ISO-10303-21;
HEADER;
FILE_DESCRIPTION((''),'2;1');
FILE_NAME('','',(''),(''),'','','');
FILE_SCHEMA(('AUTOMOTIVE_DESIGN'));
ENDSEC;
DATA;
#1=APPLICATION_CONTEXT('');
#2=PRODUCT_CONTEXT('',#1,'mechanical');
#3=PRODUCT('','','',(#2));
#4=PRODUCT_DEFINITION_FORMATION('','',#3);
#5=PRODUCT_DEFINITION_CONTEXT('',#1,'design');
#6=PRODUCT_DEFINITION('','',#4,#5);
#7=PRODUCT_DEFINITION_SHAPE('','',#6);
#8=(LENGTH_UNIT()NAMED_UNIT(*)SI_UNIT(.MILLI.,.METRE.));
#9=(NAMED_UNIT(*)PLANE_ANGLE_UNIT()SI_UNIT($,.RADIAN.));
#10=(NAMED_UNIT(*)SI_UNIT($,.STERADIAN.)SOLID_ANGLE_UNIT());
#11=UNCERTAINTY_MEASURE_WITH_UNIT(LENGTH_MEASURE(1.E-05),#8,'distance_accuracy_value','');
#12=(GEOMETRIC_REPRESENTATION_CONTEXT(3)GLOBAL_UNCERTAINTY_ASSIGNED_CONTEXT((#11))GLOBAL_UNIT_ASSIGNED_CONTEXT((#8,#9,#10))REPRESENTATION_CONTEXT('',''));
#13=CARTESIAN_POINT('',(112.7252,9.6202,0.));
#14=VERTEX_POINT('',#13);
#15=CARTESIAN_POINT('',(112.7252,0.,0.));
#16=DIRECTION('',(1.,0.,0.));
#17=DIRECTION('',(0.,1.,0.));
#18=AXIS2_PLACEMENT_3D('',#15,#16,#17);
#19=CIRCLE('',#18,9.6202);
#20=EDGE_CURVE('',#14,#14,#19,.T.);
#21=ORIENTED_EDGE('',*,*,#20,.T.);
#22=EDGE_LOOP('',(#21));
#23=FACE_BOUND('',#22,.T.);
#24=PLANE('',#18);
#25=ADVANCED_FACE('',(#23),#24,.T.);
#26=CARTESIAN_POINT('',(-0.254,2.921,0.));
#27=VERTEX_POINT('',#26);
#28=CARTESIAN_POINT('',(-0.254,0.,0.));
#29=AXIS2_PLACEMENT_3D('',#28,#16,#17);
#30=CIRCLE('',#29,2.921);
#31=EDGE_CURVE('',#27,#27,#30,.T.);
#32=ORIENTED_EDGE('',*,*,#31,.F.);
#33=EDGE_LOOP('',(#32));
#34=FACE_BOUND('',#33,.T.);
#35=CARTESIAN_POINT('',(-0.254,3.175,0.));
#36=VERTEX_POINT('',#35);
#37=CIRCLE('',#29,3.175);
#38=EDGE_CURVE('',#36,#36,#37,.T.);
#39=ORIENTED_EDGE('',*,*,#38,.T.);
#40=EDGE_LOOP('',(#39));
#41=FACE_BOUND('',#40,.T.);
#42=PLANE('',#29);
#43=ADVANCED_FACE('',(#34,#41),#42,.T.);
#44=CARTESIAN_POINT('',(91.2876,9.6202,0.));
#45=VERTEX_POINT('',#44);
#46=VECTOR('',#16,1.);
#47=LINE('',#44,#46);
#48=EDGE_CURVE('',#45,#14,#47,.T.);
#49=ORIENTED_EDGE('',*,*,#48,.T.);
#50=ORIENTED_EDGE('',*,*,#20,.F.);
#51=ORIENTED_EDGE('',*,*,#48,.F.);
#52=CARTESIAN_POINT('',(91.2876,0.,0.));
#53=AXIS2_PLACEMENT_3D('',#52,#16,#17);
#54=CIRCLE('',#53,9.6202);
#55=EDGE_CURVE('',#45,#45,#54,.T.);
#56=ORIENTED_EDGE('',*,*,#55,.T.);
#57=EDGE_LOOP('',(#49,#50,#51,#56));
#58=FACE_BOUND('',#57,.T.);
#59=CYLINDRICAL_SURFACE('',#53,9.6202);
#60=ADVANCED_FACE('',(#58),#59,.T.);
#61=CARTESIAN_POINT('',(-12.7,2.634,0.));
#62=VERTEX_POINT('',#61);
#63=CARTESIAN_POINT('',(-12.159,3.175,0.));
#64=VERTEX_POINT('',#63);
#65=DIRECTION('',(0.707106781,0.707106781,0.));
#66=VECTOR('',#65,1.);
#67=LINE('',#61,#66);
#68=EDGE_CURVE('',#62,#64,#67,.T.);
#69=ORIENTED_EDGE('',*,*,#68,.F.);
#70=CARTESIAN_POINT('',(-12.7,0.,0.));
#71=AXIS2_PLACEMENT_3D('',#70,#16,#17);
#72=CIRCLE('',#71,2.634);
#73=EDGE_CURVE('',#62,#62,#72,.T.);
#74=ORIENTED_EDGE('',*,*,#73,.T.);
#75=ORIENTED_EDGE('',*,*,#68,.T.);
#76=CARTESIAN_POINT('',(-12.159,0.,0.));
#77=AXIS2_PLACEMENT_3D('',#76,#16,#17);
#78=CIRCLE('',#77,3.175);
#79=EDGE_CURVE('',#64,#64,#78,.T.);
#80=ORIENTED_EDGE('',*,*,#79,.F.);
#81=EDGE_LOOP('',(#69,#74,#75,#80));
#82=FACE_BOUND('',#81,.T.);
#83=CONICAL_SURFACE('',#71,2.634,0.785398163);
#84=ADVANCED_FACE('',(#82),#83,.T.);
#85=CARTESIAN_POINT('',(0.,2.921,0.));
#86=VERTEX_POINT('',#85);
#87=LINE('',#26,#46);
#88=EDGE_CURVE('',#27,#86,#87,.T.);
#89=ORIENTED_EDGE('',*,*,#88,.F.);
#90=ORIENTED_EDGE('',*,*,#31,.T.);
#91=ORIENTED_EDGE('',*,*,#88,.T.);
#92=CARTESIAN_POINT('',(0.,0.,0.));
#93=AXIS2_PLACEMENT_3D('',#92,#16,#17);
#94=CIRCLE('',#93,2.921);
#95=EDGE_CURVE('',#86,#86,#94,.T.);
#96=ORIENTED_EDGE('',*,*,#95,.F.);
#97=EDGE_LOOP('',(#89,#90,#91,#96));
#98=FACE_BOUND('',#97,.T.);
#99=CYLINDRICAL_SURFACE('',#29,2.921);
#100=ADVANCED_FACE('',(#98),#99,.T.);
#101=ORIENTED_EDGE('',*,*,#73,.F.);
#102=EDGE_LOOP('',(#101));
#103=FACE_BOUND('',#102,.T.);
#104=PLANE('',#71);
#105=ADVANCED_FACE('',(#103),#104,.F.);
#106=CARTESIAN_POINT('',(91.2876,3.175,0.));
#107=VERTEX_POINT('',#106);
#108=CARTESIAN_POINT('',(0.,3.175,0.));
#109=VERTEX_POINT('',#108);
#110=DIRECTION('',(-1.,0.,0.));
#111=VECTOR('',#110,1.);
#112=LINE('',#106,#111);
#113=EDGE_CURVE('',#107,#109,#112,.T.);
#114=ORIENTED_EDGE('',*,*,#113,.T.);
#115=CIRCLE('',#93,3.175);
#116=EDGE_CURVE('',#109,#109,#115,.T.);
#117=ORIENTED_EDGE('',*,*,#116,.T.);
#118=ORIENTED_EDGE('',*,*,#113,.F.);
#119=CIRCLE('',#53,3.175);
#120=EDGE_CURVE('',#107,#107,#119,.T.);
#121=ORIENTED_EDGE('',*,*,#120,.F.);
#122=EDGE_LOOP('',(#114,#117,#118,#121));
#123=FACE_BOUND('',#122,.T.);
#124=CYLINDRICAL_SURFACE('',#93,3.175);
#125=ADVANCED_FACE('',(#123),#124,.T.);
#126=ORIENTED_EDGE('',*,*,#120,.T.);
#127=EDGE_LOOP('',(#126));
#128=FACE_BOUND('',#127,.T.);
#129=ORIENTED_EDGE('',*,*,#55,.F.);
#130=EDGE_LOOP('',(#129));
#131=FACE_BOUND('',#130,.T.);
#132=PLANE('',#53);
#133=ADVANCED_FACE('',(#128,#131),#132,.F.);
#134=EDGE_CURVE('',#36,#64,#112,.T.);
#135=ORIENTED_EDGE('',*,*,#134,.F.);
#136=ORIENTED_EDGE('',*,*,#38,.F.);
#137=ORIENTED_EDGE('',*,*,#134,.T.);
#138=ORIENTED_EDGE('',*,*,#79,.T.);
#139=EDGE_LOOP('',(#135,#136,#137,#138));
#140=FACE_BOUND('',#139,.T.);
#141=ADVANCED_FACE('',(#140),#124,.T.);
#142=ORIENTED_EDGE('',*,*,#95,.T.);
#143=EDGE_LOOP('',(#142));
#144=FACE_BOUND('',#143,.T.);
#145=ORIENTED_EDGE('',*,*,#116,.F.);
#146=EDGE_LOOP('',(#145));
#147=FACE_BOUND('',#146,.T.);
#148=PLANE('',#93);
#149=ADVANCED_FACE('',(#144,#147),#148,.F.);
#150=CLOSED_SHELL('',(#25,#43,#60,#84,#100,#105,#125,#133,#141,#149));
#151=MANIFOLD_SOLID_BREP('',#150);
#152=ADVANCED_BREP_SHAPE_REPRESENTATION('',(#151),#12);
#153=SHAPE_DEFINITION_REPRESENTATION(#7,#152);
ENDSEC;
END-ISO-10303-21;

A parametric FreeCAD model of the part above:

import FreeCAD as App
import Part
import Sketcher
from FreeCAD import Vector
Q = App.Units.Quantity

doc = App.newDocument("Part")
params = doc.addObject("Spreadsheet::Sheet", "Params")
for row, (alias, value) in enumerate([
    ("sketch1_width", "4.438 in"),
    ("sketch1_width2", "0.844 in"),
    ("sketch1_height", "0.125 in"),
    ("revolution_angle", "360 deg"),
    ("sketch2_width", "0.5 in"),
    ("sketch2_height", "0.125 in"),
    ("revolution2_angle", "360 deg"),
    ("sketch3_width", "0.01 in"),
    ("sketch3_height", "0.02 in"),
    ("groove_angle", "360 deg"),
], start=1):
    params.set(f"A{row}", alias)
    params.set(f"B{row}", "=" + value)
    params.setAlias(f"B{row}", alias)

body = doc.addObject("PartDesign::Body", "Body")

# Sketch on XY plane
sketch1 = body.newObject("Sketcher::SketchObject", "Sketch")
sketch1.AttachmentSupport = (doc.getObject("XY_Plane"), [""])
sketch1.MapMode = "FlatFace"
sketch1.addGeometry([
    Part.LineSegment(Vector(0, 0, 0), Vector(112.7252, 0, 0)),  # 0
    Part.LineSegment(Vector(112.7252, 0, 0), Vector(112.7252, 9.6202, 0)),  # 1
    Part.LineSegment(Vector(112.7252, 9.6202, 0), Vector(91.2876, 9.6202, 0)),  # 2
    Part.LineSegment(Vector(91.2876, 9.6202, 0), Vector(91.2876, 3.175, 0)),  # 3
    Part.LineSegment(Vector(91.2876, 3.175, 0), Vector(0, 3.175, 0)),  # 4
    Part.LineSegment(Vector(0, 3.175, 0), Vector(0, 0, 0)),  # 5
], False)
sketch1.addConstraint([
    Sketcher.Constraint("Coincident", 0, 2, 1, 1),
    Sketcher.Constraint("Coincident", 1, 2, 2, 1),
    Sketcher.Constraint("Coincident", 2, 2, 3, 1),
    Sketcher.Constraint("Coincident", 3, 2, 4, 1),
    Sketcher.Constraint("Coincident", 4, 2, 5, 1),
    Sketcher.Constraint("Coincident", 5, 2, 0, 1),
    Sketcher.Constraint("Horizontal", 0),
    Sketcher.Constraint("Vertical", 1),
    Sketcher.Constraint("Horizontal", 2),
    Sketcher.Constraint("Vertical", 3),
    Sketcher.Constraint("Horizontal", 4),
    Sketcher.Constraint("Vertical", 5),
    Sketcher.Constraint("Coincident", 5, 2, -1, 1),
    Sketcher.Constraint("DistanceX", 0, 1, 0, 2, Q("4.438 in")),
    Sketcher.Constraint("DistanceX", 2, 2, 2, 1, Q("0.844 in")),
    Sketcher.Constraint("DistanceY", 5, 2, 5, 1, Q("0.125 in")),
    Sketcher.Constraint("DistanceY", 1, 1, 1, 2, Q("9.6202 mm")),
])
sketch1.setExpression("Constraints[13]", "Params.sketch1_width")
sketch1.setExpression("Constraints[14]", "Params.sketch1_width2")
sketch1.setExpression("Constraints[15]", "Params.sketch1_height")
revolution = body.newObject("PartDesign::Revolution", "Revolution")
revolution.Profile = sketch1
revolution.ReferenceAxis = (sketch1, ["H_Axis"])
revolution.setExpression("Angle", "Params.revolution_angle")

# Sketch on XY plane
sketch2 = body.newObject("Sketcher::SketchObject", "Sketch001")
sketch2.AttachmentSupport = (doc.getObject("XY_Plane"), [""])
sketch2.MapMode = "FlatFace"
sketch2.addGeometry([
    Part.LineSegment(Vector(-12.7, 0, 0), Vector(0, 0, 0)),  # 0
    Part.LineSegment(Vector(0, 0, 0), Vector(0, 3.175, 0)),  # 1
    Part.LineSegment(Vector(0, 3.175, 0), Vector(-12.159, 3.175, 0)),  # 2
    Part.LineSegment(Vector(-12.159, 3.175, 0), Vector(-12.7, 2.634, 0)),  # 3
    Part.LineSegment(Vector(-12.7, 2.634, 0), Vector(-12.7, 0, 0)),  # 4
], False)
sketch2.addConstraint([
    Sketcher.Constraint("Coincident", 0, 2, 1, 1),
    Sketcher.Constraint("Coincident", 1, 2, 2, 1),
    Sketcher.Constraint("Coincident", 2, 2, 3, 1),
    Sketcher.Constraint("Coincident", 3, 2, 4, 1),
    Sketcher.Constraint("Coincident", 4, 2, 0, 1),
    Sketcher.Constraint("Horizontal", 0),
    Sketcher.Constraint("Vertical", 1),
    Sketcher.Constraint("Horizontal", 2),
    Sketcher.Constraint("Vertical", 4),
    Sketcher.Constraint("Coincident", 0, 2, -1, 1),
    Sketcher.Constraint("DistanceX", 0, 1, 0, 2, Q("0.5 in")),
    Sketcher.Constraint("Angle", 3, Q("-135 deg")),
    Sketcher.Constraint("DistanceY", 1, 1, 1, 2, Q("0.125 in")),
    Sketcher.Constraint("DistanceX", 2, 2, 2, 1, Q("0.4787 in")),
])
sketch2.setExpression("Constraints[10]", "Params.sketch2_width")
sketch2.setExpression("Constraints[12]", "Params.sketch2_height")
revolution2 = body.newObject("PartDesign::Revolution", "Revolution001")
revolution2.Profile = sketch2
revolution2.ReferenceAxis = (sketch2, ["H_Axis"])
revolution2.setExpression("Angle", "Params.revolution2_angle")

# Sketch on XY plane
sketch3 = body.newObject("Sketcher::SketchObject", "Sketch002")
sketch3.AttachmentSupport = (doc.getObject("XY_Plane"), [""])
sketch3.MapMode = "FlatFace"
sketch3.addGeometry([
    Part.LineSegment(Vector(-0.254, 3.429, 0), Vector(-0.254, 2.921, 0)),
    Part.LineSegment(Vector(-0.254, 2.921, 0), Vector(0, 2.921, 0)),
    Part.LineSegment(Vector(0, 2.921, 0), Vector(0, 3.429, 0)),
    Part.LineSegment(Vector(0, 3.429, 0), Vector(-0.254, 3.429, 0)),
], False)
sketch3.addConstraint([
    Sketcher.Constraint("Coincident", 0, 2, 1, 1),
    Sketcher.Constraint("Coincident", 1, 2, 2, 1),
    Sketcher.Constraint("Coincident", 2, 2, 3, 1),
    Sketcher.Constraint("Coincident", 3, 2, 0, 1),
    Sketcher.Constraint("Vertical", 0),
    Sketcher.Constraint("Horizontal", 1),
    Sketcher.Constraint("Vertical", 2),
    Sketcher.Constraint("Horizontal", 3),
    Sketcher.Constraint("PointOnObject", 1, 2, -2),
    Sketcher.Constraint("DistanceX", 1, 1, 1, 2, Q("0.01 in")),
    Sketcher.Constraint("DistanceY", 0, 2, 0, 1, Q("0.02 in")),
    Sketcher.Constraint("DistanceY", -1, 1, 0, 2, Q("0.115 in")),
])
sketch3.setExpression("Constraints[9]", "Params.sketch3_width")
sketch3.setExpression("Constraints[10]", "Params.sketch3_height")
groove = body.newObject("PartDesign::Groove", "Groove")
groove.Profile = sketch3
groove.ReferenceAxis = (sketch3, ["H_Axis"])
groove.setExpression("Angle", "Params.groove_angle")

doc.recompute()
